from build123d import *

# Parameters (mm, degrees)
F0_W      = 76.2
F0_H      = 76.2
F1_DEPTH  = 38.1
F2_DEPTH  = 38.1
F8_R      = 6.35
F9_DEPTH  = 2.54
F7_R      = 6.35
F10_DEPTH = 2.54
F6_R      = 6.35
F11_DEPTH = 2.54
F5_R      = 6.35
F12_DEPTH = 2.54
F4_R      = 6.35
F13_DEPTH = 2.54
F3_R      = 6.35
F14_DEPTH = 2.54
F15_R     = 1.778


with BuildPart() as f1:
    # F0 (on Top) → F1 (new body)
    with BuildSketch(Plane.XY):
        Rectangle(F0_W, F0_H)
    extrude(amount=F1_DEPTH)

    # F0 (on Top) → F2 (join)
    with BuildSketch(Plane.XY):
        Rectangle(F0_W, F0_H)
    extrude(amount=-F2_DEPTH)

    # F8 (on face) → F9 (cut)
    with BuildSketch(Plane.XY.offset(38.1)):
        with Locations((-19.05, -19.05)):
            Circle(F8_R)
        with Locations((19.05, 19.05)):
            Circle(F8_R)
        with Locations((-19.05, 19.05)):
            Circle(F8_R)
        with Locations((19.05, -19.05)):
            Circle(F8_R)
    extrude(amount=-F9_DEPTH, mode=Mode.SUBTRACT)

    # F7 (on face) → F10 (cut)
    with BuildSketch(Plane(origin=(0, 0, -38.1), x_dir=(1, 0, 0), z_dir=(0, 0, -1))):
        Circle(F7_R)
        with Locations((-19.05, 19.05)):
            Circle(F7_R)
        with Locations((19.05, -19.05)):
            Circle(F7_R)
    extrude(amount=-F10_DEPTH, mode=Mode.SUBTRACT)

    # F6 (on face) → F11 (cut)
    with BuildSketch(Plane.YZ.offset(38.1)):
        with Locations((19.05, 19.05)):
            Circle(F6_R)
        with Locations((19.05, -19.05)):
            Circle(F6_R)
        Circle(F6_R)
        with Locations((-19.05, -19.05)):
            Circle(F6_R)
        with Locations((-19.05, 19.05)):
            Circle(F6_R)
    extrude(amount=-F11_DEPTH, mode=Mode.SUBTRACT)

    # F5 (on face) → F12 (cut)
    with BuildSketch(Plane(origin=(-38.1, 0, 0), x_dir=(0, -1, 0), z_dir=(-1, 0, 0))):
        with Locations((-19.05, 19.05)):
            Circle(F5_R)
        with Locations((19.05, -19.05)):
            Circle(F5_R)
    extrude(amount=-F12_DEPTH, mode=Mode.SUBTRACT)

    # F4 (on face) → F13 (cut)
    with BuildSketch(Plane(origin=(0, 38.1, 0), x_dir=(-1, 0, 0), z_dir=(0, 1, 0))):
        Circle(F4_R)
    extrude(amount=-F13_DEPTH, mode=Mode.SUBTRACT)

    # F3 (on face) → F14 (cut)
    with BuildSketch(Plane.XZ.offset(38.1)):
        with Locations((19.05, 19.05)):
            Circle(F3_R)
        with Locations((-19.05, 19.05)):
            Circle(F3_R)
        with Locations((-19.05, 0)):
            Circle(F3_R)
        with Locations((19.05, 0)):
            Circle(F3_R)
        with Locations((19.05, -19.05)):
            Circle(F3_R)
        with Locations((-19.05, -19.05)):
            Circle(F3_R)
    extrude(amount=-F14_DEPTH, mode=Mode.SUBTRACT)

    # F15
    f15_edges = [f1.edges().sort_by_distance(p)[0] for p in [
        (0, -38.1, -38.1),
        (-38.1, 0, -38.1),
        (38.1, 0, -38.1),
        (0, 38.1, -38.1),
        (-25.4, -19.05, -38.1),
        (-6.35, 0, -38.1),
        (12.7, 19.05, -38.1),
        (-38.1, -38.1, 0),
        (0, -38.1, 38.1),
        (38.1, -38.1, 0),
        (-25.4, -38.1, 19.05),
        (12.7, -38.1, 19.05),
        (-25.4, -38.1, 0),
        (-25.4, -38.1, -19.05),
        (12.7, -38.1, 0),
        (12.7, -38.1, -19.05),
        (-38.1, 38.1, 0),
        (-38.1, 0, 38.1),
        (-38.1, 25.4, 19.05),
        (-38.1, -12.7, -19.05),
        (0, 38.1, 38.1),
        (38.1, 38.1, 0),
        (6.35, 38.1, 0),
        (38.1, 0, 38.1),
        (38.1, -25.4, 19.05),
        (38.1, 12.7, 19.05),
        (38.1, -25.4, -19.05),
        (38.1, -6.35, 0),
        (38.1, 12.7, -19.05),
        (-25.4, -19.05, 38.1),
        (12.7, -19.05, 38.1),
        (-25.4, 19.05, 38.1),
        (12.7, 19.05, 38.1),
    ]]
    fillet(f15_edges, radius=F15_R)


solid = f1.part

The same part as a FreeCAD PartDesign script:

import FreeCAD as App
import Part
import Sketcher

V = App.Vector
Q = App.Units.Quantity


def edges_at(feature, points):
    """Names of the edges that pass closest to the given points."""
    edges = feature.Shape.Edges
    near = lambda p: min(range(len(edges)), key=lambda i: edges[i].distToShape(Part.Vertex(*p))[0])
    return sorted({f"Edge{near(p) + 1}" for p in points})

doc = App.newDocument("Part")
params = doc.addObject("Spreadsheet::Sheet", "Params")
for row, (alias, value) in enumerate([
    ("sketch1_width", "3 in"),
    ("pad1_length", "1.5 in"),
    ("sketch2_width", "3 in"),
    ("pad2_length", "1.5 in"),
    ("sketch3_diameter", "0.5 in"),
    ("pocket1_length", "0.1 in"),
    ("sketch4_diameter", "0.5 in"),
    ("pocket2_length", "0.1 in"),
    ("sketch5_diameter", "0.5 in"),
    ("pocket3_length", "0.1 in"),
    ("sketch6_diameter", "0.5 in"),
    ("pocket4_length", "0.1 in"),
    ("sketch7_diameter", "0.5 in"),
    ("pocket5_length", "0.1 in"),
    ("sketch8_diameter", "0.5 in"),
    ("pocket6_length", "0.1 in"),
    ("fillet_radius", "0.07 in"),
], start=1):
    params.set(f"A{row}", alias)
    params.set(f"B{row}", "=" + value)
    params.setAlias(f"B{row}", alias)

body = doc.addObject("PartDesign::Body", "Body")

sketch1 = doc.addObject("Sketcher::SketchObject", "Sketch")
body.addObject(sketch1)
sketch1.AttachmentSupport = (doc.XY_Plane, [""])
sketch1.MapMode = "FlatFace"
sketch1.addGeometry(Part.LineSegment(V(-38, 38, 0), V(-38, -38, 0)), False)
sketch1.addGeometry(Part.LineSegment(V(-38, -38, 0), V(38, -38, 0)), False)
sketch1.addGeometry(Part.LineSegment(V(38, -38, 0), V(38, 38, 0)), False)
sketch1.addGeometry(Part.LineSegment(V(38, 38, 0), V(-38, 38, 0)), False)
sketch1.addConstraint(Sketcher.Constraint("Coincident", 0, 2, 1, 1))
sketch1.addConstraint(Sketcher.Constraint("Coincident", 1, 2, 2, 1))
sketch1.addConstraint(Sketcher.Constraint("Coincident", 2, 2, 3, 1))
sketch1.addConstraint(Sketcher.Constraint("Coincident", 3, 2, 0, 1))
sketch1.addConstraint(Sketcher.Constraint("Vertical", 0))
sketch1.addConstraint(Sketcher.Constraint("Horizontal", 1))
sketch1.addConstraint(Sketcher.Constraint("Vertical", 2))
sketch1.addConstraint(Sketcher.Constraint("Horizontal", 3))
sketch1.addConstraint(Sketcher.Constraint("Symmetric", 0, 2, 2, 2, -1, 1))
sketch1.addConstraint(Sketcher.Constraint("Equal", 3, 0))
sketch1.addConstraint(Sketcher.Constraint("DistanceX", 1, 1, 1, 2, Q("3 in")))
sketch1.setExpression("Constraints[10]", "Params.sketch1_width")
pad1 = doc.addObject("PartDesign::Pad", "Pad")
body.addObject(pad1)
pad1.Profile = sketch1
pad1.setExpression("Length", "Params.pad1_length")

sketch2 = doc.addObject("Sketcher::SketchObject", "Sketch001")
body.addObject(sketch2)
sketch2.AttachmentSupport = (doc.XY_Plane, [""])
sketch2.MapMode = "FlatFace"
sketch2.addGeometry(Part.LineSegment(V(-38, 38, 0), V(-38, -38, 0)), False)
sketch2.addGeometry(Part.LineSegment(V(-38, -38, 0), V(38, -38, 0)), False)
sketch2.addGeometry(Part.LineSegment(V(38, -38, 0), V(38, 38, 0)), False)
sketch2.addGeometry(Part.LineSegment(V(38, 38, 0), V(-38, 38, 0)), False)
sketch2.addConstraint(Sketcher.Constraint("Coincident", 0, 2, 1, 1))
sketch2.addConstraint(Sketcher.Constraint("Coincident", 1, 2, 2, 1))
sketch2.addConstraint(Sketcher.Constraint("Coincident", 2, 2, 3, 1))
sketch2.addConstraint(Sketcher.Constraint("Coincident", 3, 2, 0, 1))
sketch2.addConstraint(Sketcher.Constraint("Vertical", 0))
sketch2.addConstraint(Sketcher.Constraint("Horizontal", 1))
sketch2.addConstraint(Sketcher.Constraint("Vertical", 2))
sketch2.addConstraint(Sketcher.Constraint("Horizontal", 3))
sketch2.addConstraint(Sketcher.Constraint("Symmetric", 0, 2, 2, 2, -1, 1))
sketch2.addConstraint(Sketcher.Constraint("Equal", 3, 0))
sketch2.addConstraint(Sketcher.Constraint("DistanceX", 1, 1, 1, 2, Q("3 in")))
sketch2.setExpression("Constraints[10]", "Params.sketch2_width")
pad2 = doc.addObject("PartDesign::Pad", "Pad001")
body.addObject(pad2)
pad2.Profile = sketch2
pad2.setExpression("Length", "Params.pad2_length")
pad2.Reversed = True

sketch3 = doc.addObject("Sketcher::SketchObject", "Sketch002")
body.addObject(sketch3)
sketch3.AttachmentSupport = (doc.XY_Plane, [""])
sketch3.MapMode = "FlatFace"
sketch3.AttachmentOffset = App.Placement(V(0, 0, 1.5 * 25.4), App.Rotation())
sketch3.addGeometry(Part.Circle(V(-19, -19, 0), V(0, 0, 1), 6), False)
sketch3.addGeometry(Part.Circle(V(19, 19, 0), V(0, 0, 1), 6), False)
sketch3.addGeometry(Part.Circle(V(-19, 19, 0), V(0, 0, 1), 6), False)
sketch3.addGeometry(Part.Circle(V(19, -19, 0), V(0, 0, 1), 6), False)
sketch3.addConstraint(Sketcher.Constraint("Equal", 0, 1))
sketch3.addConstraint(Sketcher.Constraint("Equal", 1, 2))
sketch3.addConstraint(Sketcher.Constraint("Equal", 2, 3))
sketch3.addConstraint(Sketcher.Constraint("Symmetric", 0, 3, 1, 3, -1, 1))
sketch3.addConstraint(Sketcher.Constraint("Symmetric", 2, 3, 3, 3, -1, 1))
sketch3.addConstraint(Sketcher.Constraint("Symmetric", 1, 3, 2, 3, -2))
sketch3.addConstraint(Sketcher.Constraint("Diameter", 0, Q("0.5 in")))
sketch3.addConstraint(Sketcher.Constraint("DistanceX", 0, 3, 1, 3, Q("1.5 in")))
sketch3.addConstraint(Sketcher.Constraint("DistanceY", 0, 3, 1, 3, Q("1.5 in")))
sketch3.setExpression("Constraints[6]", "Params.sketch3_diameter")
pocket1 = doc.addObject("PartDesign::Pocket", "Pocket")
body.addObject(pocket1)
pocket1.Profile = sketch3
pocket1.setExpression("Length", "Params.pocket1_length")

sketch4 = doc.addObject("Sketcher::SketchObject", "Sketch003")
body.addObject(sketch4)
sketch4.AttachmentSupport = (doc.XY_Plane, [""])
sketch4.MapMode = "FlatFace"
sketch4.AttachmentOffset = App.Placement(V(0, 0, -1.5 * 25.4), App.Rotation())
sketch4.addGeometry(Part.Circle(V(0, 0, 0), V(0, 0, 1), 6), False)
sketch4.addGeometry(Part.Circle(V(-19, -19, 0), V(0, 0, 1), 6), False)
sketch4.addGeometry(Part.Circle(V(19, 19, 0), V(0, 0, 1), 6), False)
sketch4.addConstraint(Sketcher.Constraint("Coincident", 0, 3, -1, 1))
sketch4.addConstraint(Sketcher.Constraint("Equal", 0, 1))
sketch4.addConstraint(Sketcher.Constraint("Equal", 1, 2))
sketch4.addConstraint(Sketcher.Constraint("Symmetric", 1, 3, 2, 3, -1, 1))
sketch4.addConstraint(Sketcher.Constraint("Diameter", 0, Q("0.5 in")))
sketch4.addConstraint(Sketcher.Constraint("DistanceX", 1, 3, 2, 3, Q("1.5 in")))
sketch4.addConstraint(Sketcher.Constraint("DistanceY", 1, 3, 2, 3, Q("1.5 in")))
sketch4.setExpression("Constraints[4]", "Params.sketch4_diameter")
pocket2 = doc.addObject("PartDesign::Pocket", "Pocket001")
body.addObject(pocket2)
pocket2.Profile = sketch4
pocket2.setExpression("Length", "Params.pocket2_length")
pocket2.Reversed = True

sketch5 = doc.addObject("Sketcher::SketchObject", "Sketch004")
body.addObject(sketch5)
sketch5.AttachmentSupport = (doc.YZ_Plane, [""])
sketch5.MapMode = "FlatFace"
sketch5.AttachmentOffset = App.Placement(V(0, 0, 1.5 * 25.4), App.Rotation())
sketch5.addGeometry(Part.Circle(V(19, 19, 0), V(0, 0, 1), 6), False)
sketch5.addGeometry(Part.Circle(V(19, -19, 0), V(0, 0, 1), 6), False)
sketch5.addGeometry(Part.Circle(V(0, 0, 0), V(0, 0, 1), 6), False)
sketch5.addGeometry(Part.Circle(V(-19, -19, 0), V(0, 0, 1), 6), False)
sketch5.addGeometry(Part.Circle(V(-19, 19, 0), V(0, 0, 1), 6), False)
sketch5.addConstraint(Sketcher.Constraint("Coincident", 2, 3, -1, 1))
sketch5.addConstraint(Sketcher.Constraint("Equal", 0, 1))
sketch5.addConstraint(Sketcher.Constraint("Equal", 1, 2))
sketch5.addConstraint(Sketcher.Constraint("Equal", 2, 3))
sketch5.addConstraint(Sketcher.Constraint("Equal", 3, 4))
sketch5.addConstraint(Sketcher.Constraint("Symmetric", 0, 3, 3, 3, -1, 1))
sketch5.addConstraint(Sketcher.Constraint("Symmetric", 1, 3, 4, 3, -1, 1))
sketch5.addConstraint(Sketcher.Constraint("Symmetric", 1, 3, 3, 3, -2))
sketch5.addConstraint(Sketcher.Constraint("Diameter", 0, Q("0.5 in")))
sketch5.addConstraint(Sketcher.Constraint("DistanceY", 1, 3, 0, 3, Q("1.5 in")))
sketch5.addConstraint(Sketcher.Constraint("DistanceX", 3, 3, 1, 3, Q("1.5 in")))
sketch5.setExpression("Constraints[8]", "Params.sketch5_diameter")
pocket3 = doc.addObject("PartDesign::Pocket", "Pocket002")
body.addObject(pocket3)
pocket3.Profile = sketch5
pocket3.setExpression("Length", "Params.pocket3_length")

sketch6 = doc.addObject("Sketcher::SketchObject", "Sketch005")
body.addObject(sketch6)
sketch6.AttachmentSupport = (doc.YZ_Plane, [""])
sketch6.MapMode = "FlatFace"
sketch6.AttachmentOffset = App.Placement(V(0, 0, -1.5 * 25.4), App.Rotation())
sketch6.addGeometry(Part.Circle(V(19, 19, 0), V(0, 0, 1), 6), False)
sketch6.addGeometry(Part.Circle(V(-19, -19, 0), V(0, 0, 1), 6), False)
sketch6.addConstraint(Sketcher.Constraint("Equal", 0, 1))
sketch6.addConstraint(Sketcher.Constraint("Symmetric", 0, 3, 1, 3, -1, 1))
sketch6.addConstraint(Sketcher.Constraint("Diameter", 0, Q("0.5 in")))
sketch6.addConstraint(Sketcher.Constraint("DistanceX", 1, 3, 0, 3, Q("1.5 in")))
sketch6.addConstraint(Sketcher.Constraint("DistanceY", 1, 3, 0, 3, Q("1.5 in")))
sketch6.setExpression("Constraints[2]", "Params.sketch6_diameter")
pocket4 = doc.addObject("PartDesign::Pocket", "Pocket003")
body.addObject(pocket4)
pocket4.Profile = sketch6
pocket4.setExpression("Length", "Params.pocket4_length")
pocket4.Reversed = True

sketch7 = doc.addObject("Sketcher::SketchObject", "Sketch006")
body.addObject(sketch7)
sketch7.AttachmentSupport = (doc.XZ_Plane, [""])
sketch7.MapMode = "FlatFace"
sketch7.AttachmentOffset = App.Placement(V(0, 0, -1.5 * 25.4), App.Rotation())
sketch7.addGeometry(Part.Circle(V(0, 0, 0), V(0, 0, 1), 6), False)
sketch7.addConstraint(Sketcher.Constraint("Coincident", 0, 3, -1, 1))
sketch7.addConstraint(Sketcher.Constraint("Diameter", 0, Q("0.5 in")))
sketch7.setExpression("Constraints[1]", "Params.sketch7_diameter")
pocket5 = doc.addObject("PartDesign::Pocket", "Pocket004")
body.addObject(pocket5)
pocket5.Profile = sketch7
pocket5.setExpression("Length", "Params.pocket5_length")
pocket5.Reversed = True

sketch8 = doc.addObject("Sketcher::SketchObject", "Sketch007")
body.addObject(sketch8)
sketch8.AttachmentSupport = (doc.XZ_Plane, [""])
sketch8.MapMode = "FlatFace"
sketch8.AttachmentOffset = App.Placement(V(0, 0, 1.5 * 25.4), App.Rotation())
sketch8.addGeometry(Part.Circle(V(19, 19, 0), V(0, 0, 1), 6), False)
sketch8.addGeometry(Part.Circle(V(-19, 19, 0), V(0, 0, 1), 6), False)
sketch8.addGeometry(Part.Circle(V(-19, 0, 0), V(0, 0, 1), 6), False)
sketch8.addGeometry(Part.Circle(V(19, 0, 0), V(0, 0, 1), 6), False)
sketch8.addGeometry(Part.Circle(V(19, -19, 0), V(0, 0, 1), 6), False)
sketch8.addGeometry(Part.Circle(V(-19, -19, 0), V(0, 0, 1), 6), False)
sketch8.addConstraint(Sketcher.Constraint("Equal", 0, 1))
sketch8.addConstraint(Sketcher.Constraint("Equal", 1, 2))
sketch8.addConstraint(Sketcher.Constraint("Equal", 2, 3))
sketch8.addConstraint(Sketcher.Constraint("Equal", 3, 4))
sketch8.addConstraint(Sketcher.Constraint("Equal", 4, 5))
sketch8.addConstraint(Sketcher.Constraint("Symmetric", 2, 3, 3, 3, -1, 1))
sketch8.addConstraint(Sketcher.Constraint("Symmetric", 1, 3, 4, 3, -1, 1))
sketch8.addConstraint(Sketcher.Constraint("Symmetric", 0, 3, 5, 3, -1, 1))
sketch8.addConstraint(Sketcher.Constraint("Symmetric", 0, 3, 1, 3, -2))
sketch8.addConstraint(Sketcher.Constraint("PointOnObject", 2, 3, -1))
sketch8.addConstraint(Sketcher.Constraint("Vertical", 1, 3, 2, 3))
sketch8.addConstraint(Sketcher.Constraint("Diameter", 0, Q("0.5 in")))
sketch8.addConstraint(Sketcher.Constraint("DistanceX", 1, 3, 0, 3, Q("1.5 in")))
sketch8.addConstraint(Sketcher.Constraint("DistanceY", 4, 3, 0, 3, Q("1.5 in")))
sketch8.setExpression("Constraints[11]", "Params.sketch8_diameter")
pocket6 = doc.addObject("PartDesign::Pocket", "Pocket005")
body.addObject(pocket6)
pocket6.Profile = sketch8
pocket6.setExpression("Length", "Params.pocket6_length")
doc.recompute()

fillet = doc.addObject("PartDesign::Fillet", "Fillet")
body.addObject(fillet)
fillet.Base = (pocket6, edges_at(pocket6, [
    (0, -38.1, -38.1),
    (-38.1, 0, -38.1),
    (38.1, 0, -38.1),
    (0, 38.1, -38.1),
    (-25.4, -19.05, -38.1),
    (-6.35, 0, -38.1),
    (12.7, 19.05, -38.1),
    (-38.1, -38.1, 0),
    (0, -38.1, 38.1),
    (38.1, -38.1, 0),
    (-25.4, -38.1, 19.05),
    (12.7, -38.1, 19.05),
    (-25.4, -38.1, 0),
    (-25.4, -38.1, -19.05),
    (12.7, -38.1, 0),
    (12.7, -38.1, -19.05),
    (-38.1, 38.1, 0),
    (-38.1, 0, 38.1),
    (-38.1, 25.4, 19.05),
    (-38.1, -12.7, -19.05),
    (0, 38.1, 38.1),
    (38.1, 38.1, 0),
    (6.35, 38.1, 0),
    (38.1, 0, 38.1),
    (38.1, -25.4, 19.05),
    (38.1, 12.7, 19.05),
    (38.1, -25.4, -19.05),
    (38.1, -6.35, 0),
    (38.1, 12.7, -19.05),
    (-25.4, -19.05, 38.1),
    (12.7, -19.05, 38.1),
    (-25.4, 19.05, 38.1),
    (12.7, 19.05, 38.1),
]))
fillet.setExpression("Radius", "Params.fillet_radius")

doc.recompute()
